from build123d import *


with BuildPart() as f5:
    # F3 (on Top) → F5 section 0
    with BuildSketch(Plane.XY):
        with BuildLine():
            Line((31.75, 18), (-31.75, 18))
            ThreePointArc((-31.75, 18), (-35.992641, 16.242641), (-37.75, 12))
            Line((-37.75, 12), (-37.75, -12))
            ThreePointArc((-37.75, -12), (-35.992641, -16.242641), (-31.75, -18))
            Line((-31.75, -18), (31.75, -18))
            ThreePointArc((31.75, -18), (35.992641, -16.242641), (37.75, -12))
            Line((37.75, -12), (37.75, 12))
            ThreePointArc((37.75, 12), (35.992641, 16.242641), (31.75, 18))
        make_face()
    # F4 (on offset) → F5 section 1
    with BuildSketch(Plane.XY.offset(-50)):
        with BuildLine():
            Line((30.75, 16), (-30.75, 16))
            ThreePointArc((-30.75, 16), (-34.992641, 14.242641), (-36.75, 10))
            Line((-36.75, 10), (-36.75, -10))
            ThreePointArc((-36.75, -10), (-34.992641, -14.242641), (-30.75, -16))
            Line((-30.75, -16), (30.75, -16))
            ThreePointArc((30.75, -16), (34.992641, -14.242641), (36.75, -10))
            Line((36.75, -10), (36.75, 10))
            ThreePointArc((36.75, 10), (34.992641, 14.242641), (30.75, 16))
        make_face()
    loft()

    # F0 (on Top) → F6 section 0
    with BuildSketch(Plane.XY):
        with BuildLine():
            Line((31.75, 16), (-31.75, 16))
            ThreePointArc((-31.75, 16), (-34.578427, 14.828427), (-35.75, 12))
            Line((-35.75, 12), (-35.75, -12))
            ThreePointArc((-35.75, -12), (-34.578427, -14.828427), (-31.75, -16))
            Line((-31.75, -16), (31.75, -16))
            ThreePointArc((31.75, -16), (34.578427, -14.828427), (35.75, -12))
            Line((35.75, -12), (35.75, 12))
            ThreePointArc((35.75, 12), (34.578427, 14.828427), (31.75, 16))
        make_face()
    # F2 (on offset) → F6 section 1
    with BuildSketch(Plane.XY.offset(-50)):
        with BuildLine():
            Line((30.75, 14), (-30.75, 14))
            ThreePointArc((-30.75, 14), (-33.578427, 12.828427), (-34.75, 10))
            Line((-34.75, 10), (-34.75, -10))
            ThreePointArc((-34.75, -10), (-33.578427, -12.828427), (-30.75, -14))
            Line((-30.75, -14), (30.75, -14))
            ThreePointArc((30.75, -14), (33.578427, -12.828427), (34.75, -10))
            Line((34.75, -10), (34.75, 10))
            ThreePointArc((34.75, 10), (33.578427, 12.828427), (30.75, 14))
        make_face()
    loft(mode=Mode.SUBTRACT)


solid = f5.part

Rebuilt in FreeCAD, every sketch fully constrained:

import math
import FreeCAD as App
import Part
import Sketcher
Q = App.Units.Quantity

doc = App.newDocument("Part")
params = doc.addObject("Spreadsheet::Sheet", "Params")
for row, (alias, value) in enumerate([
    ("sketch1_radius", "5.999999 mm"),
    ("sketch1_height", "24 mm"),
    ("sketch1_width", "63.5 mm"),
    ("sketch2_radius", "5.999999 mm"),
    ("sketch2_height", "20 mm"),
    ("sketch2_width", "61.5 mm"),
    ("sketch3_radius", "4 mm"),
    ("sketch3_height", "24 mm"),
    ("sketch3_width", "63.5 mm"),
    ("sketch4_radius", "4 mm"),
    ("sketch4_height", "20 mm"),
    ("sketch4_width", "61.5 mm"),
], start=1):
    params.set(f"A{row}", alias)
    params.set(f"B{row}", "=" + value)
    params.setAlias(f"B{row}", alias)

body = doc.addObject("PartDesign::Body", "Body")

sketch1 = body.newObject("Sketcher::SketchObject", "Sketch")
sketch1.AttachmentSupport = (doc.getObject("XY_Plane"), [""])
sketch1.MapMode = "FlatFace"
sketch1.addGeometry([
    Part.LineSegment(App.Vector(31.75, 18, 0), App.Vector(-31.75, 18, 0)),
    Part.ArcOfCircle(Part.Circle(App.Vector(-31.750001, 12.000001, 0), App.Vector(0, 0, 1), 5.999999), math.radians(89.99999), math.radians(180.00001)),
    Part.LineSegment(App.Vector(-37.75, 12, 0), App.Vector(-37.75, -12, 0)),
    Part.ArcOfCircle(Part.Circle(App.Vector(-31.750001, -12.000001, 0), App.Vector(0, 0, 1), 5.999999), math.radians(179.99999), math.radians(270.00001)),
    Part.LineSegment(App.Vector(-31.75, -18, 0), App.Vector(31.75, -18, 0)),
    Part.ArcOfCircle(Part.Circle(App.Vector(31.750001, -12.000001, 0), App.Vector(0, 0, 1), 5.999999), math.radians(-90.00001), math.radians(0.00001)),
    Part.LineSegment(App.Vector(37.75, -12, 0), App.Vector(37.75, 12, 0)),
    Part.ArcOfCircle(Part.Circle(App.Vector(31.750001, 12.000001, 0), App.Vector(0, 0, 1), 5.999999), math.radians(-0.00001), math.radians(90.00001)),
], False)
sketch1.addConstraint([
    Sketcher.Constraint("Tangent", 0, 2, 1, 1),
    Sketcher.Constraint("Tangent", 1, 2, 2, 1),
    Sketcher.Constraint("Tangent", 2, 2, 3, 1),
    Sketcher.Constraint("Tangent", 3, 2, 4, 1),
    Sketcher.Constraint("Tangent", 4, 2, 5, 1),
    Sketcher.Constraint("Tangent", 5, 2, 6, 1),
    Sketcher.Constraint("Tangent", 6, 2, 7, 1),
    Sketcher.Constraint("Tangent", 7, 2, 0, 1),
    Sketcher.Constraint("Horizontal", 0),
    Sketcher.Constraint("Vertical", 2),
    Sketcher.Constraint("Horizontal", 4),
    Sketcher.Constraint("Vertical", 6),
    Sketcher.Constraint("Equal", 1, 3),
    Sketcher.Constraint("Equal", 3, 5),
    Sketcher.Constraint("Equal", 5, 7),
    Sketcher.Constraint("Symmetric", 1, 3, 5, 3, -1, 1),
    Sketcher.Constraint("Radius", 1, Q("5.999999 mm")),
    Sketcher.Constraint("DistanceY", 2, 2, 2, 1, Q("24 mm")),
    Sketcher.Constraint("DistanceX", 0, 2, 0, 1, Q("63.5 mm")),
])
sketch1.setExpression("Constraints[16]", "Params.sketch1_radius")
sketch1.setExpression("Constraints[17]", "Params.sketch1_height")
sketch1.setExpression("Constraints[18]", "Params.sketch1_width")

sketch2 = body.newObject("Sketcher::SketchObject", "Sketch001")
sketch2.AttachmentSupport = (doc.getObject("XY_Plane"), [""])
sketch2.MapMode = "FlatFace"
sketch2.AttachmentOffset = App.Placement(App.Vector(0, 0, -50), App.Rotation())
sketch2.addGeometry([
    Part.LineSegment(App.Vector(30.75, 16, 0), App.Vector(-30.75, 16, 0)),
    Part.ArcOfCircle(Part.Circle(App.Vector(-30.750001, 10.000001, 0), App.Vector(0, 0, 1), 5.999999), math.radians(89.99999), math.radians(180.00001)),
    Part.LineSegment(App.Vector(-36.75, 10, 0), App.Vector(-36.75, -10, 0)),
    Part.ArcOfCircle(Part.Circle(App.Vector(-30.750001, -10.000001, 0), App.Vector(0, 0, 1), 5.999999), math.radians(179.99999), math.radians(270.00001)),
    Part.LineSegment(App.Vector(-30.75, -16, 0), App.Vector(30.75, -16, 0)),
    Part.ArcOfCircle(Part.Circle(App.Vector(30.750001, -10.000001, 0), App.Vector(0, 0, 1), 5.999999), math.radians(-90.00001), math.radians(0.00001)),
    Part.LineSegment(App.Vector(36.75, -10, 0), App.Vector(36.75, 10, 0)),
    Part.ArcOfCircle(Part.Circle(App.Vector(30.750001, 10.000001, 0), App.Vector(0, 0, 1), 5.999999), math.radians(-0.00001), math.radians(90.00001)),
], False)
sketch2.addConstraint([
    Sketcher.Constraint("Tangent", 0, 2, 1, 1),
    Sketcher.Constraint("Tangent", 1, 2, 2, 1),
    Sketcher.Constraint("Tangent", 2, 2, 3, 1),
    Sketcher.Constraint("Tangent", 3, 2, 4, 1),
    Sketcher.Constraint("Tangent", 4, 2, 5, 1),
    Sketcher.Constraint("Tangent", 5, 2, 6, 1),
    Sketcher.Constraint("Tangent", 6, 2, 7, 1),
    Sketcher.Constraint("Tangent", 7, 2, 0, 1),
    Sketcher.Constraint("Horizontal", 0),
    Sketcher.Constraint("Vertical", 2),
    Sketcher.Constraint("Horizontal", 4),
    Sketcher.Constraint("Vertical", 6),
    Sketcher.Constraint("Equal", 1, 3),
    Sketcher.Constraint("Equal", 3, 5),
    Sketcher.Constraint("Equal", 5, 7),
    Sketcher.Constraint("Symmetric", 1, 3, 5, 3, -1, 1),
    Sketcher.Constraint("Radius", 1, Q("5.999999 mm")),
    Sketcher.Constraint("DistanceY", 2, 2, 2, 1, Q("20 mm")),
    Sketcher.Constraint("DistanceX", 0, 2, 0, 1, Q("61.5 mm")),
])
sketch2.setExpression("Constraints[16]", "Params.sketch2_radius")
sketch2.setExpression("Constraints[17]", "Params.sketch2_height")
sketch2.setExpression("Constraints[18]", "Params.sketch2_width")

additiveloft = body.newObject("PartDesign::AdditiveLoft", "AdditiveLoft")
additiveloft.Profile = sketch1
additiveloft.Sections = [sketch2]

sketch3 = body.newObject("Sketcher::SketchObject", "Sketch002")
sketch3.AttachmentSupport = (doc.getObject("XY_Plane"), [""])
sketch3.MapMode = "FlatFace"
sketch3.addGeometry([
    Part.LineSegment(App.Vector(31.75, 16, 0), App.Vector(-31.75, 16, 0)),
    Part.ArcOfCircle(Part.Circle(App.Vector(-31.75, 12, 0), App.Vector(0, 0, 1), 4), math.radians(90.000006), math.radians(179.999994)),
    Part.LineSegment(App.Vector(-35.75, 12, 0), App.Vector(-35.75, -12, 0)),
    Part.ArcOfCircle(Part.Circle(App.Vector(-31.75, -12, 0), App.Vector(0, 0, 1), 4), math.radians(-179.999994), math.radians(-90.000006)),
    Part.LineSegment(App.Vector(-31.75, -16, 0), App.Vector(31.75, -16, 0)),
    Part.ArcOfCircle(Part.Circle(App.Vector(31.75, -12, 0), App.Vector(0, 0, 1), 4), math.radians(-89.999994), math.radians(-0.000006)),
    Part.LineSegment(App.Vector(35.75, -12, 0), App.Vector(35.75, 12, 0)),
    Part.ArcOfCircle(Part.Circle(App.Vector(31.75, 12, 0), App.Vector(0, 0, 1), 4), math.radians(0.000006), math.radians(89.999994)),
], False)
sketch3.addConstraint([
    Sketcher.Constraint("Tangent", 0, 2, 1, 1),
    Sketcher.Constraint("Tangent", 1, 2, 2, 1),
    Sketcher.Constraint("Tangent", 2, 2, 3, 1),
    Sketcher.Constraint("Tangent", 3, 2, 4, 1),
    Sketcher.Constraint("Tangent", 4, 2, 5, 1),
    Sketcher.Constraint("Tangent", 5, 2, 6, 1),
    Sketcher.Constraint("Tangent", 6, 2, 7, 1),
    Sketcher.Constraint("Tangent", 7, 2, 0, 1),
    Sketcher.Constraint("Horizontal", 0),
    Sketcher.Constraint("Vertical", 2),
    Sketcher.Constraint("Horizontal", 4),
    Sketcher.Constraint("Vertical", 6),
    Sketcher.Constraint("Equal", 1, 3),
    Sketcher.Constraint("Equal", 3, 5),
    Sketcher.Constraint("Equal", 5, 7),
    Sketcher.Constraint("Symmetric", 1, 3, 5, 3, -1, 1),
    Sketcher.Constraint("Radius", 1, Q("4 mm")),
    Sketcher.Constraint("DistanceY", 2, 2, 2, 1, Q("24 mm")),
    Sketcher.Constraint("DistanceX", 0, 2, 0, 1, Q("63.5 mm")),
])
sketch3.setExpression("Constraints[16]", "Params.sketch3_radius")
sketch3.setExpression("Constraints[17]", "Params.sketch3_height")
sketch3.setExpression("Constraints[18]", "Params.sketch3_width")

sketch4 = body.newObject("Sketcher::SketchObject", "Sketch003")
sketch4.AttachmentSupport = (doc.getObject("XY_Plane"), [""])
sketch4.MapMode = "FlatFace"
sketch4.AttachmentOffset = App.Placement(App.Vector(0, 0, -50), App.Rotation())
sketch4.addGeometry([
    Part.LineSegment(App.Vector(30.75, 14, 0), App.Vector(-30.75, 14, 0)),
    Part.ArcOfCircle(Part.Circle(App.Vector(-30.75, 10, 0), App.Vector(0, 0, 1), 4), math.radians(90.000006), math.radians(179.999994)),
    Part.LineSegment(App.Vector(-34.75, 10, 0), App.Vector(-34.75, -10, 0)),
    Part.ArcOfCircle(Part.Circle(App.Vector(-30.75, -10, 0), App.Vector(0, 0, 1), 4), math.radians(-179.999994), math.radians(-90.000006)),
    Part.LineSegment(App.Vector(-30.75, -14, 0), App.Vector(30.75, -14, 0)),
    Part.ArcOfCircle(Part.Circle(App.Vector(30.75, -10, 0), App.Vector(0, 0, 1), 4), math.radians(-89.999994), math.radians(-0.000006)),
    Part.LineSegment(App.Vector(34.75, -10, 0), App.Vector(34.75, 10, 0)),
    Part.ArcOfCircle(Part.Circle(App.Vector(30.75, 10, 0), App.Vector(0, 0, 1), 4), math.radians(0.000006), math.radians(89.999994)),
], False)
sketch4.addConstraint([
    Sketcher.Constraint("Tangent", 0, 2, 1, 1),
    Sketcher.Constraint("Tangent", 1, 2, 2, 1),
    Sketcher.Constraint("Tangent", 2, 2, 3, 1),
    Sketcher.Constraint("Tangent", 3, 2, 4, 1),
    Sketcher.Constraint("Tangent", 4, 2, 5, 1),
    Sketcher.Constraint("Tangent", 5, 2, 6, 1),
    Sketcher.Constraint("Tangent", 6, 2, 7, 1),
    Sketcher.Constraint("Tangent", 7, 2, 0, 1),
    Sketcher.Constraint("Horizontal", 0),
    Sketcher.Constraint("Vertical", 2),
    Sketcher.Constraint("Horizontal", 4),
    Sketcher.Constraint("Vertical", 6),
    Sketcher.Constraint("Equal", 1, 3),
    Sketcher.Constraint("Equal", 3, 5),
    Sketcher.Constraint("Equal", 5, 7),
    Sketcher.Constraint("Symmetric", 1, 3, 5, 3, -1, 1),
    Sketcher.Constraint("Radius", 1, Q("4 mm")),
    Sketcher.Constraint("DistanceY", 2, 2, 2, 1, Q("20 mm")),
    Sketcher.Constraint("DistanceX", 0, 2, 0, 1, Q("61.5 mm")),
])
sketch4.setExpression("Constraints[16]", "Params.sketch4_radius")
sketch4.setExpression("Constraints[17]", "Params.sketch4_height")
sketch4.setExpression("Constraints[18]", "Params.sketch4_width")

subtractiveloft = body.newObject("PartDesign::SubtractiveLoft", "SubtractiveLoft")
subtractiveloft.Profile = sketch3
subtractiveloft.Sections = [sketch4]

doc.recompute()
